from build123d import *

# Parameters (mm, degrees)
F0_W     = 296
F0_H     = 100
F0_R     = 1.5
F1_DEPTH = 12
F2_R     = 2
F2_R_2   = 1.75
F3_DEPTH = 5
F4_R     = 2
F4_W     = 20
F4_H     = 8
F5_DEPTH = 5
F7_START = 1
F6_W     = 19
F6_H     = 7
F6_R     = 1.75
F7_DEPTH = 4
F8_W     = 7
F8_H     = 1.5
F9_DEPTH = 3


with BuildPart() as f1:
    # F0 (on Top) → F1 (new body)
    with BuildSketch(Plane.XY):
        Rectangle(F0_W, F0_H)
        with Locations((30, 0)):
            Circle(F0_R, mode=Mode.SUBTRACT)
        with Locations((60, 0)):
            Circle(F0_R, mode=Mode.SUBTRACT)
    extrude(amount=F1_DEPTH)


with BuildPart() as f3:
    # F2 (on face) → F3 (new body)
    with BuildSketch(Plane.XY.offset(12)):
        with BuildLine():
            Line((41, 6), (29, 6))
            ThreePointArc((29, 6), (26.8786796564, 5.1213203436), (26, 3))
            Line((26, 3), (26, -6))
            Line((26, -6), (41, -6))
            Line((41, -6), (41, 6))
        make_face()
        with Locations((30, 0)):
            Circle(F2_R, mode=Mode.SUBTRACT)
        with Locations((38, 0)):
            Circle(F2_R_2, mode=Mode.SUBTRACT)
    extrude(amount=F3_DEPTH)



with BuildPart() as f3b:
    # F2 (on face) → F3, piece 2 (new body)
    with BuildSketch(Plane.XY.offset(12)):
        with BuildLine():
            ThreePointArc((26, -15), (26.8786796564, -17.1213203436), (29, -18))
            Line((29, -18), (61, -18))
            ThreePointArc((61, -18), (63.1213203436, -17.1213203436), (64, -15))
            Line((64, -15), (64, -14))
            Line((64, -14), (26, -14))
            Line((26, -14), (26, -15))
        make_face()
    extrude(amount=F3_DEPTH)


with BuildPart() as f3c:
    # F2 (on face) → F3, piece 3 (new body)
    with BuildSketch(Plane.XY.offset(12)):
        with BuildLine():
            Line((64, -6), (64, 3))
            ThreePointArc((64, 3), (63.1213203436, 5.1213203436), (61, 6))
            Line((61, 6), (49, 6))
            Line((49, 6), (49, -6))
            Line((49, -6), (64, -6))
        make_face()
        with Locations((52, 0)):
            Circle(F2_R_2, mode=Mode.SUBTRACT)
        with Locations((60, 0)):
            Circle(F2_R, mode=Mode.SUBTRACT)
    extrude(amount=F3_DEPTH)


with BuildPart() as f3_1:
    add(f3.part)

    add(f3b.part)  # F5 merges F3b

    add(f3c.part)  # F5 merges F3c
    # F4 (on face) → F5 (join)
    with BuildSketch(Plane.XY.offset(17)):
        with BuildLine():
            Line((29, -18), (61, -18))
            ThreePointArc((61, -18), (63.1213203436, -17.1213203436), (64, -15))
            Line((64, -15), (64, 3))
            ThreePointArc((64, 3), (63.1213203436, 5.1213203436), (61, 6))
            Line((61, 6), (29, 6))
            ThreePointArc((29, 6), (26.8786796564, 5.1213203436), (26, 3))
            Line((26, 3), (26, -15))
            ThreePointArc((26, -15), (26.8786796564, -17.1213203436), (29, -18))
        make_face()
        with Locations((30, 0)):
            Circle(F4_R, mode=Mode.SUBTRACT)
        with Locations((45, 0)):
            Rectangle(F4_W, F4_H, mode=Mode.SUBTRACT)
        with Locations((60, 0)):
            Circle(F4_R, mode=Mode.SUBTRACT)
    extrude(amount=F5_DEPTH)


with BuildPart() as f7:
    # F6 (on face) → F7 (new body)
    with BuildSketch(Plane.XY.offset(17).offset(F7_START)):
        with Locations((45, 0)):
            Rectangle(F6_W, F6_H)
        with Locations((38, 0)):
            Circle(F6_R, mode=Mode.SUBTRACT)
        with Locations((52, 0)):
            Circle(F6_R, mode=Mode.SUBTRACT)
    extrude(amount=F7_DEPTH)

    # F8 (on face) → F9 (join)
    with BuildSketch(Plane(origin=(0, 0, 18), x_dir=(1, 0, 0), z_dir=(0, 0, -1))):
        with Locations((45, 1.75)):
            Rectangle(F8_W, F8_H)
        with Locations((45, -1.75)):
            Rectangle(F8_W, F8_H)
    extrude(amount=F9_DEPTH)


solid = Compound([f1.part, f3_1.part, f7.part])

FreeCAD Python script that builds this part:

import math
import FreeCAD as App
import Part
import Sketcher

V = App.Vector


def add_polygon(sketch, points):
    """Adds a closed chain of lines whose ends are joined by coincident constraints."""
    first, n = sketch.GeometryCount, len(points)
    for a, b in zip(points, points[1:] + points[:1]):
        sketch.addGeometry(Part.LineSegment(App.Vector(*a, 0), App.Vector(*b, 0)), False)
    for i in range(n):
        sketch.addConstraint(Sketcher.Constraint("Coincident", first + i, 2, first + (i + 1) % n, 1))

doc = App.newDocument("Part")
params = doc.addObject("Spreadsheet::Sheet", "Params")
for row, (alias, value) in enumerate([
    ("sketch1_diameter", "3 mm"),
    ("sketch1_width", "296 mm"),
    ("sketch1_height", "100 mm"),
    ("pad1_length", "12 mm"),
    ("sketch2_diameter", "4 mm"),
    ("sketch2_radius", "3 mm"),
    ("sketch2_diameter2", "3.5 mm"),
    ("sketch2_width", "12 mm"),
    ("pad2_length", "5 mm"),
    ("sketch3_radius", "3 mm"),
    ("sketch3_width", "32 mm"),
    ("sketch3_height", "1 mm"),
    ("pad3_length", "5 mm"),
    ("sketch4_diameter", "4 mm"),
    ("sketch4_radius", "3 mm"),
    ("sketch4_diameter2", "3.5 mm"),
    ("sketch4_width", "12 mm"),
    ("pad4_length", "5 mm"),
    ("sketch5_diameter", "4 mm"),
    ("sketch5_radius", "3 mm"),
    ("sketch5_width", "32 mm"),
    ("sketch5_width2", "20 mm"),
    ("sketch5_height", "18 mm"),
    ("pad5_length", "5 mm"),
    ("sketch6_diameter", "3.5 mm"),
    ("sketch6_width", "19 mm"),
    ("sketch6_height", "7 mm"),
    ("pad6_length", "4 mm"),
    ("sketch7_width", "7 mm"),
    ("sketch7_height", "1.5 mm"),
    ("pad7_length", "3 mm"),
], start=1):
    params.set(f"A{row}", alias)
    params.set(f"B{row}", "=" + value)
    params.setAlias(f"B{row}", alias)

body = doc.addObject("PartDesign::Body", "Body")

# Sketch on XY plane
sketch1 = body.newObject("Sketcher::SketchObject", "Sketch")
sketch1.AttachmentSupport = (doc.getObject("XY_Plane"), [""])
sketch1.MapMode = "FlatFace"
add_polygon(sketch1, [(-148, 50), (-148, -50), (148, -50), (148, 50)])  # lines 0-3
sketch1.addGeometry(Part.Circle(V(30, 0, 0), V(0, 0, 1), 1.5), False)  # 4
sketch1.addGeometry(Part.Circle(V(60, 0, 0), V(0, 0, 1), 1.5), False)  # 5
sketch1.addConstraint([
    Sketcher.Constraint("Vertical", 0),
    Sketcher.Constraint("Horizontal", 1),
    Sketcher.Constraint("Vertical", 2),
    Sketcher.Constraint("Horizontal", 3),
    Sketcher.Constraint("Equal", 4, 5),
    Sketcher.Constraint("Symmetric", 0, 2, 2, 2, -1, 1),
    Sketcher.Constraint("PointOnObject", 4, 3, -1),
    Sketcher.Constraint("PointOnObject", 5, 3, -1),
    Sketcher.Constraint("Diameter", 4, 3.0),
    Sketcher.Constraint("DistanceX", 1, 1, 1, 2, 296.0),
    Sketcher.Constraint("DistanceY", 0, 2, 0, 1, 100.0),
    Sketcher.Constraint("DistanceX", -1, 1, 4, 3, 30.0),
    Sketcher.Constraint("DistanceX", -1, 1, 5, 3, 60.0),
])
sketch1.setExpression("Constraints[12]", "Params.sketch1_diameter")
sketch1.setExpression("Constraints[13]", "Params.sketch1_width")
sketch1.setExpression("Constraints[14]", "Params.sketch1_height")
pad1 = body.newObject("PartDesign::Pad", "Pad")
pad1.Profile = sketch1
pad1.setExpression("Length", "Params.pad1_length")
body2 = doc.addObject("PartDesign::Body", "Body001")

# Sketch on XY plane
sketch2 = body2.newObject("Sketcher::SketchObject", "Sketch001")
sketch2.AttachmentSupport = (doc.getObject("XY_Plane001"), [""])
sketch2.MapMode = "FlatFace"
sketch2.AttachmentOffset = App.Placement(V(0, 0, 12), App.Rotation())
sketch2.addGeometry([
    Part.LineSegment(V(41, 6, 0), V(29, 6, 0)),  # 0
    Part.ArcOfCircle(Part.Circle(V(29, 3, 0), V(0, 0, 1), 3), math.radians(90), math.radians(180)),  # 1
    Part.LineSegment(V(26, 3, 0), V(26, -6, 0)),  # 2
    Part.LineSegment(V(26, -6, 0), V(41, -6, 0)),  # 3
    Part.LineSegment(V(41, -6, 0), V(41, 6, 0)),  # 4
    Part.Circle(V(30, 0, 0), V(0, 0, 1), 2),  # 5
    Part.Circle(V(38, 0, 0), V(0, 0, 1), 1.8),  # 6
], False)
sketch2.addConstraint([
    Sketcher.Constraint("Tangent", 0, 2, 1, 1),
    Sketcher.Constraint("Tangent", 1, 2, 2, 1),
    Sketcher.Constraint("Coincident", 2, 2, 3, 1),
    Sketcher.Constraint("Coincident", 3, 2, 4, 1),
    Sketcher.Constraint("Coincident", 4, 2, 0, 1),
    Sketcher.Constraint("Horizontal", 0),
    Sketcher.Constraint("Vertical", 2),
    Sketcher.Constraint("Horizontal", 3),
    Sketcher.Constraint("Vertical", 4),
    Sketcher.Constraint("PointOnObject", 5, 3, -1),
    Sketcher.Constraint("PointOnObject", 6, 3, -1),
    Sketcher.Constraint("Equal", 0, 4),
    Sketcher.Constraint("Diameter", 5, 4.0),
    Sketcher.Constraint("Radius", 1, 3.0),
    Sketcher.Constraint("Diameter", 6, 3.5),
    Sketcher.Constraint("DistanceX", 0, 2, 0, 1, 12.0),
    Sketcher.Constraint("DistanceX", -1, 1, 1, 3, 29.0),
    Sketcher.Constraint("DistanceY", -1, 1, 1, 3, 3.0),
    Sketcher.Constraint("DistanceX", -1, 1, 5, 3, 30.0),
    Sketcher.Constraint("DistanceX", -1, 1, 6, 3, 38.0),
])
sketch2.setExpression("Constraints[12]", "Params.sketch2_diameter")
sketch2.setExpression("Constraints[13]", "Params.sketch2_radius")
sketch2.setExpression("Constraints[14]", "Params.sketch2_diameter2")
sketch2.setExpression("Constraints[15]", "Params.sketch2_width")
pad2 = body2.newObject("PartDesign::Pad", "Pad001")
pad2.Profile = sketch2
pad2.setExpression("Length", "Params.pad2_length")
body3 = doc.addObject("PartDesign::Body", "Body002")

# Sketch on XY plane
sketch3 = body3.newObject("Sketcher::SketchObject", "Sketch002")
sketch3.AttachmentSupport = (doc.getObject("XY_Plane002"), [""])
sketch3.MapMode = "FlatFace"
sketch3.AttachmentOffset = App.Placement(V(0, 0, 12), App.Rotation())
sketch3.addGeometry([
    Part.ArcOfCircle(Part.Circle(V(29, -15, 0), V(0, 0, 1), 3), math.radians(180), math.radians(270)),  # 0
    Part.LineSegment(V(29, -18, 0), V(61, -18, 0)),  # 1
    Part.ArcOfCircle(Part.Circle(V(61, -15, 0), V(0, 0, 1), 3), math.radians(-90), math.radians(0)),  # 2
    Part.LineSegment(V(64, -15, 0), V(64, -14, 0)),  # 3
    Part.LineSegment(V(64, -14, 0), V(26, -14, 0)),  # 4
    Part.LineSegment(V(26, -14, 0), V(26, -15, 0)),  # 5
], False)
sketch3.addConstraint([
    Sketcher.Constraint("Tangent", 0, 2, 1, 1),
    Sketcher.Constraint("Tangent", 1, 2, 2, 1),
    Sketcher.Constraint("Tangent", 2, 2, 3, 1),
    Sketcher.Constraint("Coincident", 3, 2, 4, 1),
    Sketcher.Constraint("Coincident", 4, 2, 5, 1),
    Sketcher.Constraint("Tangent", 5, 2, 0, 1),
    Sketcher.Constraint("Horizontal", 1),
    Sketcher.Constraint("Vertical", 3),
    Sketcher.Constraint("Horizontal", 4),
    Sketcher.Constraint("Vertical", 5),
    Sketcher.Constraint("Equal", 0, 2),
    Sketcher.Constraint("Radius", 0, 3.0),
    Sketcher.Constraint("DistanceX", 1, 1, 1, 2, 32.0),
    Sketcher.Constraint("DistanceY", 3, 1, 3, 2, 1.0),
    Sketcher.Constraint("DistanceX", -1, 1, 0, 3, 29.0),
    Sketcher.Constraint("DistanceY", 0, 3, -1, 1, 15.0),
])
sketch3.setExpression("Constraints[11]", "Params.sketch3_radius")
sketch3.setExpression("Constraints[12]", "Params.sketch3_width")
sketch3.setExpression("Constraints[13]", "Params.sketch3_height")
pad3 = body3.newObject("PartDesign::Pad", "Pad002")
pad3.Profile = sketch3
pad3.setExpression("Length", "Params.pad3_length")
body4 = doc.addObject("PartDesign::Body", "Body003")

# Sketch on XY plane
sketch4 = body4.newObject("Sketcher::SketchObject", "Sketch003")
sketch4.AttachmentSupport = (doc.getObject("XY_Plane003"), [""])
sketch4.MapMode = "FlatFace"
sketch4.AttachmentOffset = App.Placement(V(0, 0, 12), App.Rotation())
sketch4.addGeometry([
    Part.LineSegment(V(64, -6, 0), V(64, 3, 0)),  # 0
    Part.ArcOfCircle(Part.Circle(V(61, 3, 0), V(0, 0, 1), 3), math.radians(0), math.radians(90)),  # 1
    Part.LineSegment(V(61, 6, 0), V(49, 6, 0)),  # 2
    Part.LineSegment(V(49, 6, 0), V(49, -6, 0)),  # 3
    Part.LineSegment(V(49, -6, 0), V(64, -6, 0)),  # 4
    Part.Circle(V(52, 0, 0), V(0, 0, 1), 1.8),  # 5
    Part.Circle(V(60, 0, 0), V(0, 0, 1), 2),  # 6
], False)
sketch4.addConstraint([
    Sketcher.Constraint("Tangent", 0, 2, 1, 1),
    Sketcher.Constraint("Tangent", 1, 2, 2, 1),
    Sketcher.Constraint("Coincident", 2, 2, 3, 1),
    Sketcher.Constraint("Coincident", 3, 2, 4, 1),
    Sketcher.Constraint("Coincident", 4, 2, 0, 1),
    Sketcher.Constraint("Vertical", 0),
    Sketcher.Constraint("Horizontal", 2),
    Sketcher.Constraint("Vertical", 3),
    Sketcher.Constraint("Horizontal", 4),
    Sketcher.Constraint("PointOnObject", 5, 3, -1),
    Sketcher.Constraint("PointOnObject", 6, 3, -1),
    Sketcher.Constraint("Equal", 2, 3),
    Sketcher.Constraint("Diameter", 6, 4.0),
    Sketcher.Constraint("Radius", 1, 3.0),
    Sketcher.Constraint("Diameter", 5, 3.5),
    Sketcher.Constraint("DistanceX", 2, 2, 2, 1, 12.0),
    Sketcher.Constraint("DistanceX", -1, 1, 1, 3, 61.0),
    Sketcher.Constraint("DistanceY", -1, 1, 1, 3, 3.0),
    Sketcher.Constraint("DistanceX", -1, 1, 5, 3, 52.0),
    Sketcher.Constraint("DistanceX", -1, 1, 6, 3, 60.0),
])
sketch4.setExpression("Constraints[12]", "Params.sketch4_diameter")
sketch4.setExpression("Constraints[13]", "Params.sketch4_radius")
sketch4.setExpression("Constraints[14]", "Params.sketch4_diameter2")
sketch4.setExpression("Constraints[15]", "Params.sketch4_width")
pad4 = body4.newObject("PartDesign::Pad", "Pad003")
pad4.Profile = sketch4
pad4.setExpression("Length", "Params.pad4_length")
body2.AllowCompound = True
doc.recompute()

boolean = body2.newObject("PartDesign::Boolean", "Boolean")
boolean.Type = "Fuse"
boolean.addObjects([body3])
doc.recompute()

boolean2 = body2.newObject("PartDesign::Boolean", "Boolean001")
boolean2.Type = "Fuse"
boolean2.addObjects([body4])

# Sketch on XY plane
sketch5 = body2.newObject("Sketcher::SketchObject", "Sketch004")
sketch5.AttachmentSupport = (doc.getObject("XY_Plane001"), [""])
sketch5.MapMode = "FlatFace"
sketch5.AttachmentOffset = App.Placement(V(0, 0, 17), App.Rotation())
sketch5.addGeometry(Part.LineSegment(V(29, -18, 0), V(61, -18, 0)), False)  # 0
sketch5.addGeometry(Part.ArcOfCircle(Part.Circle(V(61, -15, 0), V(0, 0, 1), 3), math.radians(-90), math.radians(0)), False)  # 1
sketch5.addGeometry(Part.LineSegment(V(64, -15, 0), V(64, 3, 0)), False)  # 2
sketch5.addGeometry(Part.ArcOfCircle(Part.Circle(V(61, 3, 0), V(0, 0, 1), 3), math.radians(0), math.radians(90)), False)  # 3
sketch5.addGeometry(Part.LineSegment(V(61, 6, 0), V(29, 6, 0)), False)  # 4
sketch5.addGeometry(Part.ArcOfCircle(Part.Circle(V(29, 3, 0), V(0, 0, 1), 3), math.radians(90), math.radians(180)), False)  # 5
sketch5.addGeometry(Part.LineSegment(V(26, 3, 0), V(26, -15, 0)), False)  # 6
sketch5.addGeometry(Part.ArcOfCircle(Part.Circle(V(29, -15, 0), V(0, 0, 1), 3), math.radians(180), math.radians(270)), False)  # 7
sketch5.addGeometry(Part.Circle(V(30, 0, 0), V(0, 0, 1), 2), False)  # 8
add_polygon(sketch5, [(55, -4), (35, -4), (35, 4), (55, 4)])  # lines 9-12
sketch5.addGeometry(Part.Circle(V(60, 0, 0), V(0, 0, 1), 2), False)  # 13
sketch5.addConstraint([
    Sketcher.Constraint("Tangent", 0, 2, 1, 1),
    Sketcher.Constraint("Tangent", 1, 2, 2, 1),
    Sketcher.Constraint("Tangent", 2, 2, 3, 1),
    Sketcher.Constraint("Tangent", 3, 2, 4, 1),
    Sketcher.Constraint("Tangent", 4, 2, 5, 1),
    Sketcher.Constraint("Tangent", 5, 2, 6, 1),
    Sketcher.Constraint("Tangent", 6, 2, 7, 1),
    Sketcher.Constraint("Tangent", 7, 2, 0, 1),
    Sketcher.Constraint("Horizontal", 0),
    Sketcher.Constraint("Vertical", 2),
    Sketcher.Constraint("Horizontal", 4),
    Sketcher.Constraint("Vertical", 6),
    Sketcher.Constraint("Horizontal", 9),
    Sketcher.Constraint("Vertical", 10),
    Sketcher.Constraint("Horizontal", 11),
    Sketcher.Constraint("Vertical", 12),
    Sketcher.Constraint("Equal", 1, 3),
    Sketcher.Constraint("Equal", 3, 5),
    Sketcher.Constraint("Equal", 5, 7),
    Sketcher.Constraint("Equal", 8, 13),
    Sketcher.Constraint("PointOnObject", 8, 3, -1),
    Sketcher.Constraint("PointOnObject", 13, 3, -1),
    Sketcher.Constraint("Diameter", 8, 4.0),
    Sketcher.Constraint("Radius", 1, 3.0),
    Sketcher.Constraint("DistanceX", 0, 1, 0, 2, 32.0),
    Sketcher.Constraint("DistanceX", 9, 2, 9, 1, 20.0),
    Sketcher.Constraint("DistanceY", 2, 1, 2, 2, 18.0),
    Sketcher.Constraint("DistanceY", 10, 1, 10, 2, 8.0),
    Sketcher.Constraint("DistanceX", -1, 1, 1, 3, 61.0),
    Sketcher.Constraint("DistanceY", 1, 3, -1, 1, 15.0),
    Sketcher.Constraint("DistanceX", -1, 1, 8, 3, 30.0),
    Sketcher.Constraint("DistanceX", -1, 1, 13, 3, 60.0),
    Sketcher.Constraint("DistanceX", -1, 1, 9, 2, 35.0),
    Sketcher.Constraint("DistanceY", 9, 2, -1, 1, 4.0),
])
sketch5.setExpression("Constraints[26]", "Params.sketch5_diameter")
sketch5.setExpression("Constraints[27]", "Params.sketch5_radius")
sketch5.setExpression("Constraints[28]", "Params.sketch5_width")
sketch5.setExpression("Constraints[29]", "Params.sketch5_width2")
sketch5.setExpression("Constraints[30]", "Params.sketch5_height")
pad5 = body2.newObject("PartDesign::Pad", "Pad004")
pad5.Profile = sketch5
pad5.setExpression("Length", "Params.pad5_length")
body5 = doc.addObject("PartDesign::Body", "Body004")

# Sketch on XY plane
sketch6 = body5.newObject("Sketcher::SketchObject", "Sketch005")
sketch6.AttachmentSupport = (doc.getObject("XY_Plane004"), [""])
sketch6.MapMode = "FlatFace"
sketch6.AttachmentOffset = App.Placement(V(0, 0, 18), App.Rotation())
add_polygon(sketch6, [(35.5, 3.5), (35.5, -3.5), (54.5, -3.5), (54.5, 3.5)])  # lines 0-3
sketch6.addGeometry(Part.Circle(V(38, 0, 0), V(0, 0, 1), 1.8), False)  # 4
sketch6.addGeometry(Part.Circle(V(52, 0, 0), V(0, 0, 1), 1.8), False)  # 5
sketch6.addConstraint([
    Sketcher.Constraint("Vertical", 0),
    Sketcher.Constraint("Horizontal", 1),
    Sketcher.Constraint("Vertical", 2),
    Sketcher.Constraint("Horizontal", 3),
    Sketcher.Constraint("Equal", 4, 5),
    Sketcher.Constraint("PointOnObject", 4, 3, -1),
    Sketcher.Constraint("PointOnObject", 5, 3, -1),
    Sketcher.Constraint("Diameter", 4, 3.5),
    Sketcher.Constraint("DistanceX", 1, 1, 1, 2, 19.0),
    Sketcher.Constraint("DistanceY", 0, 2, 0, 1, 7.0),
    Sketcher.Constraint("DistanceX", -1, 1, 4, 3, 38.0),
    Sketcher.Constraint("DistanceX", -1, 1, 5, 3, 52.0),
    Sketcher.Constraint("DistanceX", -1, 1, 0, 2, 35.5),
    Sketcher.Constraint("DistanceY", 0, 2, -1, 1, 3.5),
])
sketch6.setExpression("Constraints[11]", "Params.sketch6_diameter")
sketch6.setExpression("Constraints[12]", "Params.sketch6_width")
sketch6.setExpression("Constraints[13]", "Params.sketch6_height")
pad6 = body5.newObject("PartDesign::Pad", "Pad005")
pad6.Profile = sketch6
pad6.setExpression("Length", "Params.pad6_length")

# Sketch on XY plane
sketch7 = body5.newObject("Sketcher::SketchObject", "Sketch006")
sketch7.AttachmentSupport = (doc.getObject("XY_Plane004"), [""])
sketch7.MapMode = "FlatFace"
sketch7.AttachmentOffset = App.Placement(V(0, 0, 18), App.Rotation())
add_polygon(sketch7, [(41.5, -2.5), (41.5, -1), (48.5, -1), (48.5, -2.5)])  # lines 0-3
add_polygon(sketch7, [(41.5, 1), (41.5, 2.5), (48.5, 2.5), (48.5, 1)])  # lines 4-7
sketch7.addConstraint([
    Sketcher.Constraint("Vertical", 0),
    Sketcher.Constraint("Horizontal", 1),
    Sketcher.Constraint("Vertical", 2),
    Sketcher.Constraint("Horizontal", 3),
    Sketcher.Constraint("Vertical", 4),
    Sketcher.Constraint("Horizontal", 5),
    Sketcher.Constraint("Vertical", 6),
    Sketcher.Constraint("Horizontal", 7),
    Sketcher.Constraint("Symmetric", 3, 2, 4, 2, -1),
    Sketcher.Constraint("Symmetric", 1, 2, 6, 2, -1),
    Sketcher.Constraint("DistanceX", 1, 1, 1, 2, 7.0),
    Sketcher.Constraint("DistanceY", 0, 1, 0, 2, 1.5),
    Sketcher.Constraint("DistanceY", 0, 2, -1, 1, 1.0),
    Sketcher.Constraint("DistanceX", -1, 1, 0, 2, 41.5),
])
sketch7.setExpression("Constraints[18]", "Params.sketch7_width")
sketch7.setExpression("Constraints[19]", "Params.sketch7_height")
pad7 = body5.newObject("PartDesign::Pad", "Pad006")
pad7.Profile = sketch7
pad7.setExpression("Length", "Params.pad7_length")
pad7.Reversed = True

doc.recompute()
